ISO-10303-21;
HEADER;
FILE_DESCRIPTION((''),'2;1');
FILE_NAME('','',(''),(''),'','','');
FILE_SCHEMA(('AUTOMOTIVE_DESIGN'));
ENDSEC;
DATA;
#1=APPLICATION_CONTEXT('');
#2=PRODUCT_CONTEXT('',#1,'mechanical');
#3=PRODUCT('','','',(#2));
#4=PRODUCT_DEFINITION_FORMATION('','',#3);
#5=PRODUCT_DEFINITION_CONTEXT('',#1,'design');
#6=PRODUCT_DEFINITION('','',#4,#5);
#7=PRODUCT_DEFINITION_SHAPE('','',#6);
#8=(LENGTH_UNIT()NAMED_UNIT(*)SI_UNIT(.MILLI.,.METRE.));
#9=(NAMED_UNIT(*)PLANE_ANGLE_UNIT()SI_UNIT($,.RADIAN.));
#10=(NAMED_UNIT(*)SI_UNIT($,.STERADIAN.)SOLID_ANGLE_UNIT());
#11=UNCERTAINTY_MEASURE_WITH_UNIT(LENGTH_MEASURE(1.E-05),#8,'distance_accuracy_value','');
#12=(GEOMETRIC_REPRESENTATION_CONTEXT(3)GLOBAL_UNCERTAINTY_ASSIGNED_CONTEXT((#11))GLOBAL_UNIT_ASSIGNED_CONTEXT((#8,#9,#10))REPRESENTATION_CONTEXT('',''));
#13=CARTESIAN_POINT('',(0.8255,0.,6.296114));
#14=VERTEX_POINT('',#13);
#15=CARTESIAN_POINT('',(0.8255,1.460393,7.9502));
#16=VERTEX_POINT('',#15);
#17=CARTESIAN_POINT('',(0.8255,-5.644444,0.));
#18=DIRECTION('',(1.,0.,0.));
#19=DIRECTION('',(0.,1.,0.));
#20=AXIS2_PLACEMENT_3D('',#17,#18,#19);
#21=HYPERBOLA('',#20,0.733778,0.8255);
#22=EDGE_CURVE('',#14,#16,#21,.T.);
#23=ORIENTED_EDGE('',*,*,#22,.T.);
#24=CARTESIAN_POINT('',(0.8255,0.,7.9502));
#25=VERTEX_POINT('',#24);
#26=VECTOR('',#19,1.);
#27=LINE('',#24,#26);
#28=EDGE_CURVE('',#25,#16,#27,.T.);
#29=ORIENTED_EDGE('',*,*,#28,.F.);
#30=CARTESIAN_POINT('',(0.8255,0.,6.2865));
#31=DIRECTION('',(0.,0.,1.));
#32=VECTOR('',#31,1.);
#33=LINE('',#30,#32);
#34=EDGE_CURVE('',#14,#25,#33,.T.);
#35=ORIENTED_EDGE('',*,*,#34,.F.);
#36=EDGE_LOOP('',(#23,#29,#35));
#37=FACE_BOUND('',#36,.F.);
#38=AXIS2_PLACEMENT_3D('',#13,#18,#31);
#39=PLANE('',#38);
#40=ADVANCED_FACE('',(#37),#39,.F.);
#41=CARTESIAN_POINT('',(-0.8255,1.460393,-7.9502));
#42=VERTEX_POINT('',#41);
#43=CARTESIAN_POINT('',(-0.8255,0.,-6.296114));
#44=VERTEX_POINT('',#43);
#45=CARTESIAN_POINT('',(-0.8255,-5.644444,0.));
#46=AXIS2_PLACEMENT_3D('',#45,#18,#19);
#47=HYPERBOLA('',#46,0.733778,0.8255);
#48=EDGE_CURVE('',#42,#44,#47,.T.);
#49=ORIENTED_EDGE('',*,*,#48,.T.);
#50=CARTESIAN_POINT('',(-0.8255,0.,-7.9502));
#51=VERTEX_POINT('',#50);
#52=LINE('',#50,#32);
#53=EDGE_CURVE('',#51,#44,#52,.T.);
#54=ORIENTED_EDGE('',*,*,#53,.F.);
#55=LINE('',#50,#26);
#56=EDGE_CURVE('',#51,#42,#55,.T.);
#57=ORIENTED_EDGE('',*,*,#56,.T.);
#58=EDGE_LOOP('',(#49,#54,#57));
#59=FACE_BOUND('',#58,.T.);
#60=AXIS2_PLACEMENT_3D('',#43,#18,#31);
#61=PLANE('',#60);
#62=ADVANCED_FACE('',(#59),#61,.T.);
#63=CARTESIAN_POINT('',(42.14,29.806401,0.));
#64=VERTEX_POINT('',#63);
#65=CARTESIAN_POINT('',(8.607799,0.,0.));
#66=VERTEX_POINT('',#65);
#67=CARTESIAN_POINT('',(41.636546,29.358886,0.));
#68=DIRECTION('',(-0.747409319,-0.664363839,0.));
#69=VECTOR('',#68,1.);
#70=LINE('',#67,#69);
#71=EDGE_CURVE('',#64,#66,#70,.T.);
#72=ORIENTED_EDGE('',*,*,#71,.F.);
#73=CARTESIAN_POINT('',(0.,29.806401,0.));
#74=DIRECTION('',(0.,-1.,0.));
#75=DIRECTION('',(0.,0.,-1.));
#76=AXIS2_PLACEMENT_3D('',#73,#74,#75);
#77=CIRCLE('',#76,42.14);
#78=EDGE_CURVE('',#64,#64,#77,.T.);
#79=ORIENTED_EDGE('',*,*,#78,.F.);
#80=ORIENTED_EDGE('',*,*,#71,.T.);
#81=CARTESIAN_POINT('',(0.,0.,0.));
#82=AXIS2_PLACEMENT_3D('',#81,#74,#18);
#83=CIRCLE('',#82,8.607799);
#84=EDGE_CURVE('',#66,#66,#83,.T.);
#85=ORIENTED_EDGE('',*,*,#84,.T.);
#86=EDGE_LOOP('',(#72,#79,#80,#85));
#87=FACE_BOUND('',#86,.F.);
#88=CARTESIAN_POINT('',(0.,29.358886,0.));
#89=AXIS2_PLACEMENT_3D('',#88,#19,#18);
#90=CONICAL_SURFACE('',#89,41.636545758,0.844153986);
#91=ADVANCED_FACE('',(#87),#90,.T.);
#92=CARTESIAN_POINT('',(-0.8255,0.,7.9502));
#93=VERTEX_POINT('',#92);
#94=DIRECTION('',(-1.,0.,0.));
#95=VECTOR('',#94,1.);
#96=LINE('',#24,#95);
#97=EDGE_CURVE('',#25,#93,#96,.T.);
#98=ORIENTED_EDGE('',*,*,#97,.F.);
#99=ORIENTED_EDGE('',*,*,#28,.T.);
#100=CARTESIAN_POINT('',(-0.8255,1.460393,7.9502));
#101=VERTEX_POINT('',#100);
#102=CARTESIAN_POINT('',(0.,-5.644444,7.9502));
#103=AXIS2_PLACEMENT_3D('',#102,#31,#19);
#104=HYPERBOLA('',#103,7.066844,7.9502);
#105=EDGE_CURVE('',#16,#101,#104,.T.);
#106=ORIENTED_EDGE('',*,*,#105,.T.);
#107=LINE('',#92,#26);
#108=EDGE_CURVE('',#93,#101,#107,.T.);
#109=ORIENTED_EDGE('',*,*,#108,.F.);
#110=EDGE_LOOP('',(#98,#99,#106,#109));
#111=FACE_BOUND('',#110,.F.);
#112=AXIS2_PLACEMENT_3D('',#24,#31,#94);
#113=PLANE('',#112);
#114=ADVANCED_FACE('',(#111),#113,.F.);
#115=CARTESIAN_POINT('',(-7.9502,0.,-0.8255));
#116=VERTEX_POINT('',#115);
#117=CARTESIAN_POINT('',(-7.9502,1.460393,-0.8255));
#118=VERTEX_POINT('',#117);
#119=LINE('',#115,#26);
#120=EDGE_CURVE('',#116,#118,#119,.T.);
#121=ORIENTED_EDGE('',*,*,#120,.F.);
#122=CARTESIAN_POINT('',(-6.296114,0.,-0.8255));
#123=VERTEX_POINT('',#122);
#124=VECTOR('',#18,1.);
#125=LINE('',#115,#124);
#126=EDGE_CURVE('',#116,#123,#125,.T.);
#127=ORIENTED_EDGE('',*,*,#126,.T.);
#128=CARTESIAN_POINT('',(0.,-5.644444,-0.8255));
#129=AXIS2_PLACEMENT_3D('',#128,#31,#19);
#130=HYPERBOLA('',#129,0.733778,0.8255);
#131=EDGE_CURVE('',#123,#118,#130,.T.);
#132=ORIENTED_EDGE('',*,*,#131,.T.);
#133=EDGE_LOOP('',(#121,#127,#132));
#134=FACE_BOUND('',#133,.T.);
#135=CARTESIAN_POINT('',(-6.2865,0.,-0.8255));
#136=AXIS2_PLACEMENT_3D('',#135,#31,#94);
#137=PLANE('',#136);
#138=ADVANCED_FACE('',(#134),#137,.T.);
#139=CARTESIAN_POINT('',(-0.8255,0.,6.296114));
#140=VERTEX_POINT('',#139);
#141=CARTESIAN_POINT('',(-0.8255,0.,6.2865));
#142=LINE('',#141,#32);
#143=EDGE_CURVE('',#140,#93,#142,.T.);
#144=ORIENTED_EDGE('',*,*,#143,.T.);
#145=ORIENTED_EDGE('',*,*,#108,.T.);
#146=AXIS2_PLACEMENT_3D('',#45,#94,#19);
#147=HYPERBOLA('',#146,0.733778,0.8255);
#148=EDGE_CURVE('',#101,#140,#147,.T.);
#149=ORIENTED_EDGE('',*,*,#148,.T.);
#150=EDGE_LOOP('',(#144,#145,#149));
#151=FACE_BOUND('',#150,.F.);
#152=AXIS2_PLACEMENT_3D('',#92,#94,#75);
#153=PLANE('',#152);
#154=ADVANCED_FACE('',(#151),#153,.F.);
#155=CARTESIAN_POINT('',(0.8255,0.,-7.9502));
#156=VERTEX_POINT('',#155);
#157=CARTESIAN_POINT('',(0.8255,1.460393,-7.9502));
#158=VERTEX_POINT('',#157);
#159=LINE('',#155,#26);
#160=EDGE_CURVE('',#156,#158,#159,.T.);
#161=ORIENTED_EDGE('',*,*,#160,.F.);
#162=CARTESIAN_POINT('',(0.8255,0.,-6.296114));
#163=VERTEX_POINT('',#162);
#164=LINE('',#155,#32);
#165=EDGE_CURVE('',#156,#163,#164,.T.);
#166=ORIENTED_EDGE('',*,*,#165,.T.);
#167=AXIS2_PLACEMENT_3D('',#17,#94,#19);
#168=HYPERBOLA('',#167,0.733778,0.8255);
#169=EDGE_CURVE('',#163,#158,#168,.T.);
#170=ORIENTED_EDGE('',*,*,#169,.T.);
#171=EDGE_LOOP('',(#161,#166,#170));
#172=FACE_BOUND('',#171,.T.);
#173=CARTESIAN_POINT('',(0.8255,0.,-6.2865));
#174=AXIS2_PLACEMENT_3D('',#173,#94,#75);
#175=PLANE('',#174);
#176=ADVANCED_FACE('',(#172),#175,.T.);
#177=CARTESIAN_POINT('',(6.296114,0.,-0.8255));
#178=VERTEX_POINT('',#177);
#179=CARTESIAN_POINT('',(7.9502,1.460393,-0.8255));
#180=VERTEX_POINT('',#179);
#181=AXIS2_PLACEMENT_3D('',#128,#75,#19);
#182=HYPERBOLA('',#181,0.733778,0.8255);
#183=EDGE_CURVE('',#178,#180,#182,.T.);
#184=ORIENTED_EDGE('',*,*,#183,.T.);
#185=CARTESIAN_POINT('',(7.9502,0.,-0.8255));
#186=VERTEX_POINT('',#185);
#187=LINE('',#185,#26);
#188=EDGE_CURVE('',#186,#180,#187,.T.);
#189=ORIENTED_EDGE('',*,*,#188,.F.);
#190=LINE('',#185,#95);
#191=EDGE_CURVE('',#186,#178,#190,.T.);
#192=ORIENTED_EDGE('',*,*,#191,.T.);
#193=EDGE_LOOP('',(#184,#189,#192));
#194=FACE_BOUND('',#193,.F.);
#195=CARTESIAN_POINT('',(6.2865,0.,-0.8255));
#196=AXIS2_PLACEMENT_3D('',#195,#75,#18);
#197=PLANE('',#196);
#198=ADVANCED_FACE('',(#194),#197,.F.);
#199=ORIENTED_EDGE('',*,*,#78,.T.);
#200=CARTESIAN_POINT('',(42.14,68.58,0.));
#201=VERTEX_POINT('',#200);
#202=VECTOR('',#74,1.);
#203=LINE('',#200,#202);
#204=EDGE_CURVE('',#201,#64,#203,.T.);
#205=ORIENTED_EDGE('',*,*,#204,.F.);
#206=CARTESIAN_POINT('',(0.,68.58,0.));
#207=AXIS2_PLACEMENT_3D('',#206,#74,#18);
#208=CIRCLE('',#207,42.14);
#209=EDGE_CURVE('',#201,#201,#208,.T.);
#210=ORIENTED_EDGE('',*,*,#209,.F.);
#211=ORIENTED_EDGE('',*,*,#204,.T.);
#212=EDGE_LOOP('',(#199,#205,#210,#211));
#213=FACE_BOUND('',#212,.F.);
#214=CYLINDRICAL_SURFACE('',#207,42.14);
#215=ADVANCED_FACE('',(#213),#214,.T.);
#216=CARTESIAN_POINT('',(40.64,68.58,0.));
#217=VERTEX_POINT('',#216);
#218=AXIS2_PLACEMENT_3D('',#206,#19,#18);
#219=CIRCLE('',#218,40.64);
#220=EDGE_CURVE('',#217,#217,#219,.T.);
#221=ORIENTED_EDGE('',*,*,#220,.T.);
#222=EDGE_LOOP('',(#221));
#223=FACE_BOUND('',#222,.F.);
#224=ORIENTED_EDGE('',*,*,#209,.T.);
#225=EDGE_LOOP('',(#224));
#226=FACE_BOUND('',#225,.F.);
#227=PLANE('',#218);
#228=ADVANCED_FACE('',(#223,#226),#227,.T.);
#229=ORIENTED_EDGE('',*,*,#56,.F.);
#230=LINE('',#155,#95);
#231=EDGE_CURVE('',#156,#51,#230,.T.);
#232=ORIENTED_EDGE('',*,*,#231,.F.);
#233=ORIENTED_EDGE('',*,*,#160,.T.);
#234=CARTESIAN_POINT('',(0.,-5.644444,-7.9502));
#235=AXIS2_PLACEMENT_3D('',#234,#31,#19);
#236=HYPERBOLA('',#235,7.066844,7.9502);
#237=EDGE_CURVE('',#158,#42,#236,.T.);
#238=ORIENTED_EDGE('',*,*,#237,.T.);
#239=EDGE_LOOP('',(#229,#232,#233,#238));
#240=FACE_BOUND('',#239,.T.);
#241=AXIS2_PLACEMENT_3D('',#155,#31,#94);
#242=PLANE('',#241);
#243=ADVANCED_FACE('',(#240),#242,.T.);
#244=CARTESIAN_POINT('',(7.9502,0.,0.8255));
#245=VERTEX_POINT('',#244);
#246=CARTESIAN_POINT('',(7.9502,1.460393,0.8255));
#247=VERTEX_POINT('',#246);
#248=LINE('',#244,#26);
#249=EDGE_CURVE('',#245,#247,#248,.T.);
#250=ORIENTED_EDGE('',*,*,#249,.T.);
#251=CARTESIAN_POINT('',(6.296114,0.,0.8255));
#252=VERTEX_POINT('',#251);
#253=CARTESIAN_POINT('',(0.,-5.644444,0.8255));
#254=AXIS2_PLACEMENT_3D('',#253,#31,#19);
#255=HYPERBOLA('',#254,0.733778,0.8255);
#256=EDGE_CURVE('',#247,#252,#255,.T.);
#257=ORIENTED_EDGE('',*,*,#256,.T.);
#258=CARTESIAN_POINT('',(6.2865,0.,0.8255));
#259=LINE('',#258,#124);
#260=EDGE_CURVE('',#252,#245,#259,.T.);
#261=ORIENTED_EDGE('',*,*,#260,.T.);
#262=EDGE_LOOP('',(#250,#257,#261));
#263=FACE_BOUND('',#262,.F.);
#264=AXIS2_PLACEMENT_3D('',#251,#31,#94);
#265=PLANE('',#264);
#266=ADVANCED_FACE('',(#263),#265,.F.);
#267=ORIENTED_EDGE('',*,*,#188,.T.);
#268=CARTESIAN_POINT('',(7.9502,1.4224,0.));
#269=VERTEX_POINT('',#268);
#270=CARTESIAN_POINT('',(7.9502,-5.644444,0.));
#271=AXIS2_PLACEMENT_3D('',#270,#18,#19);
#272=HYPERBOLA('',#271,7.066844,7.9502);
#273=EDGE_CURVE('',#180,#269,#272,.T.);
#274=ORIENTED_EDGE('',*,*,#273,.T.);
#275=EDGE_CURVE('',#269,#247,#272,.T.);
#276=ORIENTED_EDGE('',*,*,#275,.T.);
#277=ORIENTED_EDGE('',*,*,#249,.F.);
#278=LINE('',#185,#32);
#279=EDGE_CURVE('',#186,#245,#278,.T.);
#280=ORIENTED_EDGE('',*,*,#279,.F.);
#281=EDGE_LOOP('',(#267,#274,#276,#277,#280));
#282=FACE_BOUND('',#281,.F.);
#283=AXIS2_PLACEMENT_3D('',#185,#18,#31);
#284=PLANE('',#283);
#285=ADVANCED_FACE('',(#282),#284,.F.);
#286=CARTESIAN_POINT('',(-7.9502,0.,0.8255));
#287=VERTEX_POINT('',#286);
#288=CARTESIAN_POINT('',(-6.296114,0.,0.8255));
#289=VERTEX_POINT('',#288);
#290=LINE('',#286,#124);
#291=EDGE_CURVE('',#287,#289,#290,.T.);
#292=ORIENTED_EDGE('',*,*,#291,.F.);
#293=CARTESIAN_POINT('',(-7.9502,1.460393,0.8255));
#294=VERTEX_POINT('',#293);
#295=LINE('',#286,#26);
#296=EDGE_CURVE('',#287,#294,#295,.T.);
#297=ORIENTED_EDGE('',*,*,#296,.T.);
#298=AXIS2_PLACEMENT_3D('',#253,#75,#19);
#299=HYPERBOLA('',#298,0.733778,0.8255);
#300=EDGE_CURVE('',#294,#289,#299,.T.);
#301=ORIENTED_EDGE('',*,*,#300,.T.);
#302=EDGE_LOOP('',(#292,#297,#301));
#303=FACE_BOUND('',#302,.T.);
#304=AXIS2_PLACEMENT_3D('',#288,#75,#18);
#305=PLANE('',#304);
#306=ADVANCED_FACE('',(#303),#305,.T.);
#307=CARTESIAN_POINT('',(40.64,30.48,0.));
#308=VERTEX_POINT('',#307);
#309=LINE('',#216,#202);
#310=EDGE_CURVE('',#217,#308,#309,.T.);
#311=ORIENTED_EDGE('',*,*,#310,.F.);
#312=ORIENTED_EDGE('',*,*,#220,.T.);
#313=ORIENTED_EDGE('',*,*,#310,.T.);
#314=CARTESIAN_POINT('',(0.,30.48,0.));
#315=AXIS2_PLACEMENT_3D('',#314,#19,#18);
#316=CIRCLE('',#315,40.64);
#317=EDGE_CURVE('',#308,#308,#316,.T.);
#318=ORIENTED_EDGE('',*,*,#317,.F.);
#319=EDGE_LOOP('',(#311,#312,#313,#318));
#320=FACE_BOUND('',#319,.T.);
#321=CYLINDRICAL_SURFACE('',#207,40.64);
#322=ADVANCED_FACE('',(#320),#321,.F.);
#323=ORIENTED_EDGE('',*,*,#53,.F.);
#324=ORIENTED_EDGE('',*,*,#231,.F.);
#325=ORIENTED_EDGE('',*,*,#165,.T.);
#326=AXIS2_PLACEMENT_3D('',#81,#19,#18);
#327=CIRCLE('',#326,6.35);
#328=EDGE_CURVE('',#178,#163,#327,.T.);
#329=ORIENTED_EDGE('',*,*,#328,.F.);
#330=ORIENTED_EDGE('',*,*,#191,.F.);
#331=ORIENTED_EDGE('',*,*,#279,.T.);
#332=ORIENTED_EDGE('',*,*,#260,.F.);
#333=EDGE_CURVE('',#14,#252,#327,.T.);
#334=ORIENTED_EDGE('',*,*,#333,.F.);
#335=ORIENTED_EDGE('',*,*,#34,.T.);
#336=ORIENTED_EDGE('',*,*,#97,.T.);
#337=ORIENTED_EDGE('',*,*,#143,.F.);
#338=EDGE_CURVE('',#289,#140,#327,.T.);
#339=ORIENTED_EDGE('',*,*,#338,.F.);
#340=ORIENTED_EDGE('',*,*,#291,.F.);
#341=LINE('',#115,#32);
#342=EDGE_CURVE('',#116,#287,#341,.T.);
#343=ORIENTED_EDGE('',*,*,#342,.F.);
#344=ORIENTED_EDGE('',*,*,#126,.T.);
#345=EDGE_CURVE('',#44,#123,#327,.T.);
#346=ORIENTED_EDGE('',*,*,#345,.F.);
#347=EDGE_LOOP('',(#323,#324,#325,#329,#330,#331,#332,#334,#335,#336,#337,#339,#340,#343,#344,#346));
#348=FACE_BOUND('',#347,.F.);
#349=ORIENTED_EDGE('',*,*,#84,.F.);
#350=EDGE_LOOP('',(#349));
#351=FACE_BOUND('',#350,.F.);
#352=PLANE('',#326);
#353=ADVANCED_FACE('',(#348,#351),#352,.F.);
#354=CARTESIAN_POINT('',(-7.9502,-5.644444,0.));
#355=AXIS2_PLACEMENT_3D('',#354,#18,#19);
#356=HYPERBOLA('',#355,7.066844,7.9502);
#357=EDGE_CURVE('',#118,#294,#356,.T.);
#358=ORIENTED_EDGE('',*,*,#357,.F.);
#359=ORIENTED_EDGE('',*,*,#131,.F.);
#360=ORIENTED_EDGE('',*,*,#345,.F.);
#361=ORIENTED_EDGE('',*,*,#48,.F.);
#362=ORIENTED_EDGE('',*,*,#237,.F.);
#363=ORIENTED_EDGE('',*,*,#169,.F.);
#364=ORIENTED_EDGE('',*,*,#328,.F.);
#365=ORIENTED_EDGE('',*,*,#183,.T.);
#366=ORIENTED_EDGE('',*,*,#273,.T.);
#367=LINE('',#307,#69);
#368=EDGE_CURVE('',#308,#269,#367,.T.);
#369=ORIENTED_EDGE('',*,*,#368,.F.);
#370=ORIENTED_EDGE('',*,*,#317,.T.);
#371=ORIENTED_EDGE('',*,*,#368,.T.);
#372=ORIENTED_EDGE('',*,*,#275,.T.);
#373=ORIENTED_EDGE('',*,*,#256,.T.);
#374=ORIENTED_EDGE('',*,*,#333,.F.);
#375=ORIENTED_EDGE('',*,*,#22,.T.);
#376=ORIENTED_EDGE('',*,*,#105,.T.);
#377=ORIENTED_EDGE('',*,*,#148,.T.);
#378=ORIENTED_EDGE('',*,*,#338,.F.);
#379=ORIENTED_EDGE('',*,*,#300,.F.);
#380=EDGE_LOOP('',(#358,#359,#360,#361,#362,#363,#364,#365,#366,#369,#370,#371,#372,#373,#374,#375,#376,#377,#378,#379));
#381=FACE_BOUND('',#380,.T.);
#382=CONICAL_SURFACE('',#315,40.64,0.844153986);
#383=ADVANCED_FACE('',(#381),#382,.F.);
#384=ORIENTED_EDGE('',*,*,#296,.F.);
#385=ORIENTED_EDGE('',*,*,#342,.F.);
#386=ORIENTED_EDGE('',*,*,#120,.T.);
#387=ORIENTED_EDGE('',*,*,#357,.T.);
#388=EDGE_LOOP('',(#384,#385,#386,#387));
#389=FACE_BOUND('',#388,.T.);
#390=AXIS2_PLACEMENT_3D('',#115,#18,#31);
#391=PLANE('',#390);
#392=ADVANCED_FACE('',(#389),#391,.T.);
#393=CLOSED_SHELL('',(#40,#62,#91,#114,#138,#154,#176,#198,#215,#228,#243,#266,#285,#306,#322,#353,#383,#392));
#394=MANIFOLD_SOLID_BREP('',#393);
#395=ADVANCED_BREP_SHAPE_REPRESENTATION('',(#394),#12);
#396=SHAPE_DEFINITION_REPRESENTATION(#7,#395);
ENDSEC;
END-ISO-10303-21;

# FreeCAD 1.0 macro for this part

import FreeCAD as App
import Part
import Sketcher
Q = App.Units.Quantity


def faces_at(feature, points):
    """Names of the faces that lie closest to the given points."""
    faces = feature.Shape.Faces
    near = lambda p: min(range(len(faces)), key=lambda i: faces[i].distToShape(Part.Vertex(*p))[0])
    return sorted({f"Face{near(p) + 1}" for p in points})

doc = App.newDocument("Part")
body = doc.addObject("PartDesign::Body", "Body")

sketch1 = doc.addObject("Sketcher::SketchObject", "Sketch")
body.addObject(sketch1)
sketch1.AttachmentSupport = (doc.XY_Plane, [""])
sketch1.MapMode = "FlatFace"
sketch1.addGeometry(Part.LineSegment(App.Vector(0, 69, 0), App.Vector(0, 0, 0)), False)
sketch1.addGeometry(Part.LineSegment(App.Vector(0, 0, 0), App.Vector(6, 0, 0)), False)
sketch1.addGeometry(Part.LineSegment(App.Vector(6, 0, 0), App.Vector(41, 30, 0)), False)
sketch1.addGeometry(Part.LineSegment(App.Vector(41, 30, 0), App.Vector(41, 69, 0)), False)
sketch1.addGeometry(Part.LineSegment(App.Vector(41, 69, 0), App.Vector(0, 69, 0)), False)
sketch1.addConstraint(Sketcher.Constraint("Coincident", 0, 2, 1, 1))
sketch1.addConstraint(Sketcher.Constraint("Coincident", 1, 2, 2, 1))
sketch1.addConstraint(Sketcher.Constraint("Coincident", 2, 2, 3, 1))
sketch1.addConstraint(Sketcher.Constraint("Coincident", 3, 2, 4, 1))
sketch1.addConstraint(Sketcher.Constraint("Coincident", 4, 2, 0, 1))
sketch1.addConstraint(Sketcher.Constraint("Vertical", 0))
sketch1.addConstraint(Sketcher.Constraint("Horizontal", 1))
sketch1.addConstraint(Sketcher.Constraint("Vertical", 3))
sketch1.addConstraint(Sketcher.Constraint("Horizontal", 4))
sketch1.addConstraint(Sketcher.Constraint("Coincident", 0, 2, -1, 1))
sketch1.addConstraint(Sketcher.Constraint("DistanceX", 4, 2, 4, 1, Q("1.6 in")))
sketch1.addConstraint(Sketcher.Constraint("DistanceY", 3, 1, 3, 2, Q("1.5 in")))
sketch1.addConstraint(Sketcher.Constraint("DistanceX", 1, 1, 1, 2, Q("0.25 in")))
sketch1.addConstraint(Sketcher.Constraint("DistanceY", -1, 1, 2, 2, Q("1.2 in")))
revolution = doc.addObject("PartDesign::Revolution", "Revolution")
body.addObject(revolution)
revolution.Profile = sketch1
revolution.ReferenceAxis = (sketch1, ["V_Axis"])
revolution.Angle = 360
doc.recompute()

thickness = doc.addObject("PartDesign::Thickness", "Thickness")
body.addObject(thickness)
thickness.Base = (revolution, faces_at(revolution, [(-10.072, 68.58, 13.693), (-1.813, 0, 0.477)]))
thickness.Value = 1.5
thickness.Reversed = False
thickness.Join = "Intersection"

sketch2 = doc.addObject("Sketcher::SketchObject", "Sketch001")
body.addObject(sketch2)
sketch2.AttachmentSupport = (doc.XZ_Plane, [""])
sketch2.MapMode = "FlatFace"
sketch2.addGeometry(Part.LineSegment(App.Vector(6.3, 0.8, 0), App.Vector(6.3, -0.8, 0)), False)
sketch2.addGeometry(Part.LineSegment(App.Vector(6.3, -0.8, 0), App.Vector(8, -0.8, 0)), False)
sketch2.addGeometry(Part.LineSegment(App.Vector(8, -0.8, 0), App.Vector(8, 0.8, 0)), False)
sketch2.addGeometry(Part.LineSegment(App.Vector(8, 0.8, 0), App.Vector(6.3, 0.8, 0)), False)
sketch2.addGeometry(Part.LineSegment(App.Vector(-0.8, -6.3, 0), App.Vector(-0.8, -8, 0)), False)
sketch2.addGeometry(Part.LineSegment(App.Vector(-0.8, -8, 0), App.Vector(0.8, -8, 0)), False)
sketch2.addGeometry(Part.LineSegment(App.Vector(0.8, -8, 0), App.Vector(0.8, -6.3, 0)), False)
sketch2.addGeometry(Part.LineSegment(App.Vector(0.8, -6.3, 0), App.Vector(-0.8, -6.3, 0)), False)
sketch2.addGeometry(Part.LineSegment(App.Vector(-0.8, 8, 0), App.Vector(-0.8, 6.3, 0)), False)
sketch2.addGeometry(Part.LineSegment(App.Vector(-0.8, 6.3, 0), App.Vector(0.8, 6.3, 0)), False)
sketch2.addGeometry(Part.LineSegment(App.Vector(0.8, 6.3, 0), App.Vector(0.8, 8, 0)), False)
sketch2.addGeometry(Part.LineSegment(App.Vector(0.8, 8, 0), App.Vector(-0.8, 8, 0)), False)
sketch2.addGeometry(Part.LineSegment(App.Vector(-6.3, 0.8, 0), App.Vector(-8, 0.8, 0)), False)
sketch2.addGeometry(Part.LineSegment(App.Vector(-8, 0.8, 0), App.Vector(-8, -0.8, 0)), False)
sketch2.addGeometry(Part.LineSegment(App.Vector(-8, -0.8, 0), App.Vector(-6.3, -0.8, 0)), False)
sketch2.addGeometry(Part.LineSegment(App.Vector(-6.3, -0.8, 0), App.Vector(-6.3, 0.8, 0)), False)
sketch2.addConstraint(Sketcher.Constraint("Coincident", 0, 2, 1, 1))
sketch2.addConstraint(Sketcher.Constraint("Coincident", 1, 2, 2, 1))
sketch2.addConstraint(Sketcher.Constraint("Coincident", 2, 2, 3, 1))
sketch2.addConstraint(Sketcher.Constraint("Coincident", 3, 2, 0, 1))
sketch2.addConstraint(Sketcher.Constraint("Coincident", 4, 2, 5, 1))
sketch2.addConstraint(Sketcher.Constraint("Coincident", 5, 2, 6, 1))
sketch2.addConstraint(Sketcher.Constraint("Coincident", 6, 2, 7, 1))
sketch2.addConstraint(Sketcher.Constraint("Coincident", 7, 2, 4, 1))
sketch2.addConstraint(Sketcher.Constraint("Coincident", 8, 2, 9, 1))
sketch2.addConstraint(Sketcher.Constraint("Coincident", 9, 2, 10, 1))
sketch2.addConstraint(Sketcher.Constraint("Coincident", 10, 2, 11, 1))
sketch2.addConstraint(Sketcher.Constraint("Coincident", 11, 2, 8, 1))
sketch2.addConstraint(Sketcher.Constraint("Coincident", 12, 2, 13, 1))
sketch2.addConstraint(Sketcher.Constraint("Coincident", 13, 2, 14, 1))
sketch2.addConstraint(Sketcher.Constraint("Coincident", 14, 2, 15, 1))
sketch2.addConstraint(Sketcher.Constraint("Coincident", 15, 2, 12, 1))
sketch2.addConstraint(Sketcher.Constraint("Vertical", 0))
sketch2.addConstraint(Sketcher.Constraint("Horizontal", 1))
sketch2.addConstraint(Sketcher.Constraint("Vertical", 2))
sketch2.addConstraint(Sketcher.Constraint("Horizontal", 3))
sketch2.addConstraint(Sketcher.Constraint("Vertical", 4))
sketch2.addConstraint(Sketcher.Constraint("Horizontal", 5))
sketch2.addConstraint(Sketcher.Constraint("Vertical", 6))
sketch2.addConstraint(Sketcher.Constraint("Horizontal", 7))
sketch2.addConstraint(Sketcher.Constraint("Vertical", 8))
sketch2.addConstraint(Sketcher.Constraint("Horizontal", 9))
sketch2.addConstraint(Sketcher.Constraint("Vertical", 10))
sketch2.addConstraint(Sketcher.Constraint("Horizontal", 11))
sketch2.addConstraint(Sketcher.Constraint("Horizontal", 12))
sketch2.addConstraint(Sketcher.Constraint("Vertical", 13))
sketch2.addConstraint(Sketcher.Constraint("Horizontal", 14))
sketch2.addConstraint(Sketcher.Constraint("Vertical", 15))
sketch2.addConstraint(Sketcher.Constraint("Symmetric", 6, 2, 8, 2, -1, 1))
sketch2.addConstraint(Sketcher.Constraint("Symmetric", 4, 2, 10, 2, -1, 1))
sketch2.addConstraint(Sketcher.Constraint("Symmetric", 1, 2, 12, 2, -1, 1))
sketch2.addConstraint(Sketcher.Constraint("Symmetric", 3, 2, 14, 2, -1, 1))
sketch2.addConstraint(Sketcher.Constraint("Horizontal", 3, 2, 12, 2))
sketch2.addConstraint(Sketcher.Constraint("Vertical", 7, 2, 8, 2))
sketch2.addConstraint(Sketcher.Constraint("Equal", 11, 0))
sketch2.addConstraint(Sketcher.Constraint("Equal", 14, 4))
sketch2.addConstraint(Sketcher.Constraint("DistanceX", 5, 1, 5, 2, Q("0.065 in")))
sketch2.addConstraint(Sketcher.Constraint("DistanceX", 1, 1, 1, 2, Q("0.0655 in")))
sketch2.addConstraint(Sketcher.Constraint("DistanceX", 4, 2, 0, 2, Q("0.28 in")))
sketch2.addConstraint(Sketcher.Constraint("DistanceY", 6, 2, 3, 2, Q("0.28 in")))
pocket1 = doc.addObject("PartDesign::Pocket", "Pocket")
body.addObject(pocket1)
pocket1.Profile = sketch2
pocket1.Length = Q("0.065 in")

doc.recompute()
